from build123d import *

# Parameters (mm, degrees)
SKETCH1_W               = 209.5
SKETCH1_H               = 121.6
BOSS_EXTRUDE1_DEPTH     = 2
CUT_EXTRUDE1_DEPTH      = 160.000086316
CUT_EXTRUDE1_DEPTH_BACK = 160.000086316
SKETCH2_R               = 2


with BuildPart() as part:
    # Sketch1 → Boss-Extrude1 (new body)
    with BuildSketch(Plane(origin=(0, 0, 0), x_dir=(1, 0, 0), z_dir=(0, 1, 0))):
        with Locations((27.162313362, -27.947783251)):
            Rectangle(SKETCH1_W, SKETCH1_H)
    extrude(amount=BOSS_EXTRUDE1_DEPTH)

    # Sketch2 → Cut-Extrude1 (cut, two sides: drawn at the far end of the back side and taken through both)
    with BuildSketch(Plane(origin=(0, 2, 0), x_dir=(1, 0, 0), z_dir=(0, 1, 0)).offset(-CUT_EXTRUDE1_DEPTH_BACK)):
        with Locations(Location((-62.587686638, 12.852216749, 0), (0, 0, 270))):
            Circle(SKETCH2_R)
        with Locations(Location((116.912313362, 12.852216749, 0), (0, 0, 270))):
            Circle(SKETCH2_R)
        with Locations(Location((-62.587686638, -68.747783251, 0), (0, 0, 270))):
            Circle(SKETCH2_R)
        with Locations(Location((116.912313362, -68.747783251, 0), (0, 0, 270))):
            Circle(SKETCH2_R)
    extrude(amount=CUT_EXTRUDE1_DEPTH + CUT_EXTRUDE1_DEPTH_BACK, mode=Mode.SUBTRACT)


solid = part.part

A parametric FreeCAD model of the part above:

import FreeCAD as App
import Part
import Sketcher

doc = App.newDocument("Part")
body = doc.addObject("PartDesign::Body", "Body")

sketch1 = doc.addObject("Sketcher::SketchObject", "Sketch")
body.addObject(sketch1)
sketch1.AttachmentSupport = (doc.XZ_Plane, [""])
sketch1.MapMode = "FlatFace"
sketch1.addGeometry(Part.LineSegment(App.Vector(-78, -33, 0), App.Vector(-78, 89, 0)), False)
sketch1.addGeometry(Part.LineSegment(App.Vector(-78, 89, 0), App.Vector(132, 89, 0)), False)
sketch1.addGeometry(Part.LineSegment(App.Vector(132, 89, 0), App.Vector(132, -33, 0)), False)
sketch1.addGeometry(Part.LineSegment(App.Vector(132, -33, 0), App.Vector(-78, -33, 0)), False)
sketch1.addConstraint(Sketcher.Constraint("Coincident", 0, 2, 1, 1))
sketch1.addConstraint(Sketcher.Constraint("Coincident", 1, 2, 2, 1))
sketch1.addConstraint(Sketcher.Constraint("Coincident", 2, 2, 3, 1))
sketch1.addConstraint(Sketcher.Constraint("Coincident", 3, 2, 0, 1))
sketch1.addConstraint(Sketcher.Constraint("Vertical", 0))
sketch1.addConstraint(Sketcher.Constraint("Horizontal", 1))
sketch1.addConstraint(Sketcher.Constraint("Vertical", 2))
sketch1.addConstraint(Sketcher.Constraint("Horizontal", 3))
sketch1.addConstraint(Sketcher.Constraint("DistanceX", 1, 1, 1, 2, 209.5))
sketch1.addConstraint(Sketcher.Constraint("DistanceY", 0, 1, 0, 2, 121.6))
sketch1.addConstraint(Sketcher.Constraint("DistanceX", 0, 2, -1, 1, 77.587687))
sketch1.addConstraint(Sketcher.Constraint("DistanceY", -1, 1, 0, 2, 88.747783))
pad1 = doc.addObject("PartDesign::Pad", "Pad")
body.addObject(pad1)
pad1.Profile = sketch1
pad1.Length = 2
pad1.Reversed = True

sketch2 = doc.addObject("Sketcher::SketchObject", "Sketch001")
body.addObject(sketch2)
sketch2.AttachmentSupport = (doc.XZ_Plane, [""])
sketch2.MapMode = "FlatFace"
sketch2.AttachmentOffset = App.Placement(App.Vector(0, 0, -2), App.Rotation())
sketch2.addGeometry(Part.Circle(App.Vector(-62.6, -12.9, 0), App.Vector(0, 0, 1), 2), False)
sketch2.addGeometry(Part.Circle(App.Vector(116.9, -12.9, 0), App.Vector(0, 0, 1), 2), False)
sketch2.addGeometry(Part.Circle(App.Vector(-62.6, 68.7, 0), App.Vector(0, 0, 1), 2), False)
sketch2.addGeometry(Part.Circle(App.Vector(116.9, 68.7, 0), App.Vector(0, 0, 1), 2), False)
sketch2.addConstraint(Sketcher.Constraint("Equal", 0, 1))
sketch2.addConstraint(Sketcher.Constraint("Equal", 1, 2))
sketch2.addConstraint(Sketcher.Constraint("Equal", 2, 3))
sketch2.addConstraint(Sketcher.Constraint("Horizontal", 0, 3, 1, 3))
sketch2.addConstraint(Sketcher.Constraint("Horizontal", 2, 3, 3, 3))
sketch2.addConstraint(Sketcher.Constraint("Vertical", 0, 3, 2, 3))
sketch2.addConstraint(Sketcher.Constraint("Vertical", 1, 3, 3, 3))
sketch2.addConstraint(Sketcher.Constraint("Diameter", 0, 4.0))
sketch2.addConstraint(Sketcher.Constraint("DistanceX", 0, 3, 1, 3, 179.5))
sketch2.addConstraint(Sketcher.Constraint("DistanceY", 0, 3, 2, 3, 81.6))
sketch2.addConstraint(Sketcher.Constraint("DistanceX", 0, 3, -1, 1, 62.587687))
sketch2.addConstraint(Sketcher.Constraint("DistanceY", 0, 3, -1, 1, 12.852217))
pocket1 = doc.addObject("PartDesign::Pocket", "Pocket")
body.addObject(pocket1)
pocket1.Profile = sketch2
pocket1.Type = "ThroughAll"
pocket1.Midplane = True

doc.recompute()
